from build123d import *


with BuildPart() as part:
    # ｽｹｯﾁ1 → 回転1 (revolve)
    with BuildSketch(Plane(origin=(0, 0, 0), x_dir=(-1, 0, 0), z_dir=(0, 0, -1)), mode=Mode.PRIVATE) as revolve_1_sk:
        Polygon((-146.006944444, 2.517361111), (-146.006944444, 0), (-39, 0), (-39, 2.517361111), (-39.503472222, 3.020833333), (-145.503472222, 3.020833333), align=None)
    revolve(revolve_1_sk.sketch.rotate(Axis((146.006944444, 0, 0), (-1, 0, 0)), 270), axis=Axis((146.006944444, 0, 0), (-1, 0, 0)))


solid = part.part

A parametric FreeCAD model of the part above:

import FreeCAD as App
import Part
import Sketcher

doc = App.newDocument("Part")
body = doc.addObject("PartDesign::Body", "Body")

# Sketch on XY plane
sketch1 = doc.addObject("Sketcher::SketchObject", "Sketch")
body.addObject(sketch1)
sketch1.AttachmentSupport = (doc.XY_Plane, [""])
sketch1.MapMode = "FlatFace"
sketch1.addGeometry([
    Part.LineSegment(App.Vector(146, 2.5, 0), App.Vector(146, 0, 0)),  # 0
    Part.LineSegment(App.Vector(146, 0, 0), App.Vector(39, 0, 0)),  # 1
    Part.LineSegment(App.Vector(39, 0, 0), App.Vector(39, 2.5, 0)),  # 2
    Part.LineSegment(App.Vector(39, 2.5, 0), App.Vector(39.5, 3, 0)),  # 3
    Part.LineSegment(App.Vector(39.5, 3, 0), App.Vector(145.5, 3, 0)),  # 4
    Part.LineSegment(App.Vector(145.5, 3, 0), App.Vector(146, 2.5, 0)),  # 5
], False)
sketch1.addConstraint([
    Sketcher.Constraint("Coincident", 0, 2, 1, 1),
    Sketcher.Constraint("Coincident", 1, 2, 2, 1),
    Sketcher.Constraint("Coincident", 2, 2, 3, 1),
    Sketcher.Constraint("Coincident", 3, 2, 4, 1),
    Sketcher.Constraint("Coincident", 4, 2, 5, 1),
    Sketcher.Constraint("Coincident", 5, 2, 0, 1),
    Sketcher.Constraint("Vertical", 0),
    Sketcher.Constraint("Horizontal", 1),
    Sketcher.Constraint("Vertical", 2),
    Sketcher.Constraint("Horizontal", 4),
    Sketcher.Constraint("PointOnObject", 0, 2, -1),
    Sketcher.Constraint("Perpendicular", 3, 5),
    Sketcher.Constraint("Horizontal", 2, 2, 5, 2),
    Sketcher.Constraint("Equal", 3, 5),
    Sketcher.Constraint("DistanceX", 4, 1, 4, 2, 106.0),
    Sketcher.Constraint("DistanceX", -1, 1, 1, 2, 39.0),
    Sketcher.Constraint("DistanceY", 0, 2, 0, 1, 2.517361),
    Sketcher.Constraint("DistanceX", 1, 2, 1, 1, 107.006944),
])
revolution = doc.addObject("PartDesign::Revolution", "Revolution")
body.addObject(revolution)
revolution.Profile = sketch1
revolution.ReferenceAxis = (sketch1, ["H_Axis"])
revolution.Angle = 360

doc.recompute()
